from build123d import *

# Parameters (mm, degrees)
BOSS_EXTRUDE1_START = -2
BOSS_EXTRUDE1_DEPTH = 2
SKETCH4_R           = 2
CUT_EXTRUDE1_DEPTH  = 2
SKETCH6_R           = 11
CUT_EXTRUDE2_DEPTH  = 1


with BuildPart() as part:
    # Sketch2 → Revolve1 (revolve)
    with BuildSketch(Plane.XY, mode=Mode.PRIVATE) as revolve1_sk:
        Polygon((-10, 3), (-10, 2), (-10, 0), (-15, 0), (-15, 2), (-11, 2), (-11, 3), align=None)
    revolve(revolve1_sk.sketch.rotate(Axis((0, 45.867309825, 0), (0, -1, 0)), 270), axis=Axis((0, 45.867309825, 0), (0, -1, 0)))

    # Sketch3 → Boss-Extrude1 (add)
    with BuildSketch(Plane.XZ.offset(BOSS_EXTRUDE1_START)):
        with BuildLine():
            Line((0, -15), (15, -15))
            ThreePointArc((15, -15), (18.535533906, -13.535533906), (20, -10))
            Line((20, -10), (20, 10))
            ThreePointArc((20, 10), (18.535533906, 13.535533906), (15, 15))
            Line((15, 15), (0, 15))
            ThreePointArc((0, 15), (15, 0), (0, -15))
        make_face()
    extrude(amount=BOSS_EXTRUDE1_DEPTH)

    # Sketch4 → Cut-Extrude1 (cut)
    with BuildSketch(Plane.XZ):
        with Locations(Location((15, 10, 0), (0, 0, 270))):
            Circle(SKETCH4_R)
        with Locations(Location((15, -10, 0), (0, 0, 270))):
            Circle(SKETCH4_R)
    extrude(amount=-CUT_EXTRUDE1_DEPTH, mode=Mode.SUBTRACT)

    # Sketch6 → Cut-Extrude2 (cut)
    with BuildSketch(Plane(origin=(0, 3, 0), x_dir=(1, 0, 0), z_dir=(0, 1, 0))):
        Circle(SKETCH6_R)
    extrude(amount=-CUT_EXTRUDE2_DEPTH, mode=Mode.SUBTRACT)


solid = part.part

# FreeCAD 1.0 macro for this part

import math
import FreeCAD as App
import Part
import Sketcher
from FreeCAD import Vector


def add_polygon(sketch, points):
    """Adds a closed chain of lines whose ends are joined by coincident constraints."""
    first, n = sketch.GeometryCount, len(points)
    for a, b in zip(points, points[1:] + points[:1]):
        sketch.addGeometry(Part.LineSegment(App.Vector(*a, 0), App.Vector(*b, 0)), False)
    for i in range(n):
        sketch.addConstraint(Sketcher.Constraint("Coincident", first + i, 2, first + (i + 1) % n, 1))

doc = App.newDocument("Part")
body = doc.addObject("PartDesign::Body", "Body")

sketch1 = body.newObject("Sketcher::SketchObject", "Sketch")
sketch1.AttachmentSupport = (doc.getObject("XY_Plane"), [""])
sketch1.MapMode = "FlatFace"
add_polygon(sketch1, [(-10, 0), (-10, 3), (-11, 3), (-11, 2), (-15, 2), (-15, 0)])
sketch1.addConstraint([
    Sketcher.Constraint("Vertical", 0),
    Sketcher.Constraint("Horizontal", 1),
    Sketcher.Constraint("Vertical", 2),
    Sketcher.Constraint("Horizontal", 3),
    Sketcher.Constraint("Vertical", 4),
    Sketcher.Constraint("Horizontal", 5),
    Sketcher.Constraint("PointOnObject", 4, 2, -1),
    Sketcher.Constraint("Equal", 1, 2),
    Sketcher.Constraint("DistanceX", 1, 2, 1, 1, 1.0),
    Sketcher.Constraint("DistanceX", 3, 2, 3, 1, 4.0),
    Sketcher.Constraint("DistanceY", 0, 1, 0, 2, 3.0),
    Sketcher.Constraint("DistanceX", 0, 2, -1, 1, 10.0),
])
revolution = body.newObject("PartDesign::Revolution", "Revolution")
revolution.Profile = sketch1
revolution.ReferenceAxis = (sketch1, ["V_Axis"])
revolution.Angle = 360

sketch2 = body.newObject("Sketcher::SketchObject", "Sketch001")
sketch2.AttachmentSupport = (doc.getObject("XZ_Plane"), [""])
sketch2.MapMode = "FlatFace"
sketch2.AttachmentOffset = App.Placement(Vector(0, 0, -2), App.Rotation())
sketch2.addGeometry([
    Part.LineSegment(Vector(0, -15, 0), Vector(15, -15, 0)),
    Part.ArcOfCircle(Part.Circle(Vector(15, -10, 0), Vector(0, 0, 1), 5), math.radians(-90), math.radians(0)),
    Part.LineSegment(Vector(20, -10, 0), Vector(20, 10, 0)),
    Part.ArcOfCircle(Part.Circle(Vector(15, 10, 0), Vector(0, 0, 1), 5), math.radians(0), math.radians(90)),
    Part.LineSegment(Vector(15, 15, 0), Vector(0, 15, 0)),
    Part.ArcOfCircle(Part.Circle(Vector(0, 0, 0), Vector(0, 0, 1), 15), math.radians(-90), math.radians(90)),
], False)
sketch2.addConstraint([
    Sketcher.Constraint("Tangent", 0, 2, 1, 1),
    Sketcher.Constraint("Tangent", 1, 2, 2, 1),
    Sketcher.Constraint("Tangent", 2, 2, 3, 1),
    Sketcher.Constraint("Tangent", 3, 2, 4, 1),
    Sketcher.Constraint("Tangent", 4, 2, 5, 2),
    Sketcher.Constraint("Tangent", 5, 1, 0, 1),
    Sketcher.Constraint("Horizontal", 0),
    Sketcher.Constraint("Vertical", 2),
    Sketcher.Constraint("Horizontal", 4),
    Sketcher.Constraint("Coincident", 5, 3, -1, 1),
    Sketcher.Constraint("Equal", 1, 3),
    Sketcher.Constraint("Radius", 1, 5.0),
    Sketcher.Constraint("Radius", 5, 15.0),
    Sketcher.Constraint("DistanceX", 0, 1, 0, 2, 15.0),
])
pad1 = body.newObject("PartDesign::Pad", "Pad")
pad1.Profile = sketch2
pad1.Length = 2

sketch3 = body.newObject("Sketcher::SketchObject", "Sketch002")
sketch3.AttachmentSupport = (doc.getObject("XZ_Plane"), [""])
sketch3.MapMode = "FlatFace"
sketch3.addGeometry([
    Part.Circle(Vector(15, 10, 0), Vector(0, 0, 1), 2),
    Part.Circle(Vector(15, -10, 0), Vector(0, 0, 1), 2),
], False)
sketch3.addConstraint([
    Sketcher.Constraint("Equal", 0, 1),
    Sketcher.Constraint("Symmetric", 0, 3, 1, 3, -1),
    Sketcher.Constraint("Diameter", 0, 4.0),
    Sketcher.Constraint("DistanceX", -1, 1, 0, 3, 15.0),
    Sketcher.Constraint("DistanceY", -1, 1, 0, 3, 10.0),
])
pocket1 = body.newObject("PartDesign::Pocket", "Pocket")
pocket1.Profile = sketch3
pocket1.Length = 2

sketch4 = body.newObject("Sketcher::SketchObject", "Sketch003")
sketch4.AttachmentSupport = (doc.getObject("XZ_Plane"), [""])
sketch4.MapMode = "FlatFace"
sketch4.AttachmentOffset = App.Placement(Vector(0, 0, -3), App.Rotation())
sketch4.addGeometry(Part.Circle(Vector(0, 0, 0), Vector(0, 0, 1), 11), False)
sketch4.addConstraint([
    Sketcher.Constraint("Coincident", 0, 3, -1, 1),
    Sketcher.Constraint("Diameter", 0, 22.0),
])
pocket2 = body.newObject("PartDesign::Pocket", "Pocket001")
pocket2.Profile = sketch4
pocket2.Length = 1
pocket2.Reversed = True

doc.recompute()
